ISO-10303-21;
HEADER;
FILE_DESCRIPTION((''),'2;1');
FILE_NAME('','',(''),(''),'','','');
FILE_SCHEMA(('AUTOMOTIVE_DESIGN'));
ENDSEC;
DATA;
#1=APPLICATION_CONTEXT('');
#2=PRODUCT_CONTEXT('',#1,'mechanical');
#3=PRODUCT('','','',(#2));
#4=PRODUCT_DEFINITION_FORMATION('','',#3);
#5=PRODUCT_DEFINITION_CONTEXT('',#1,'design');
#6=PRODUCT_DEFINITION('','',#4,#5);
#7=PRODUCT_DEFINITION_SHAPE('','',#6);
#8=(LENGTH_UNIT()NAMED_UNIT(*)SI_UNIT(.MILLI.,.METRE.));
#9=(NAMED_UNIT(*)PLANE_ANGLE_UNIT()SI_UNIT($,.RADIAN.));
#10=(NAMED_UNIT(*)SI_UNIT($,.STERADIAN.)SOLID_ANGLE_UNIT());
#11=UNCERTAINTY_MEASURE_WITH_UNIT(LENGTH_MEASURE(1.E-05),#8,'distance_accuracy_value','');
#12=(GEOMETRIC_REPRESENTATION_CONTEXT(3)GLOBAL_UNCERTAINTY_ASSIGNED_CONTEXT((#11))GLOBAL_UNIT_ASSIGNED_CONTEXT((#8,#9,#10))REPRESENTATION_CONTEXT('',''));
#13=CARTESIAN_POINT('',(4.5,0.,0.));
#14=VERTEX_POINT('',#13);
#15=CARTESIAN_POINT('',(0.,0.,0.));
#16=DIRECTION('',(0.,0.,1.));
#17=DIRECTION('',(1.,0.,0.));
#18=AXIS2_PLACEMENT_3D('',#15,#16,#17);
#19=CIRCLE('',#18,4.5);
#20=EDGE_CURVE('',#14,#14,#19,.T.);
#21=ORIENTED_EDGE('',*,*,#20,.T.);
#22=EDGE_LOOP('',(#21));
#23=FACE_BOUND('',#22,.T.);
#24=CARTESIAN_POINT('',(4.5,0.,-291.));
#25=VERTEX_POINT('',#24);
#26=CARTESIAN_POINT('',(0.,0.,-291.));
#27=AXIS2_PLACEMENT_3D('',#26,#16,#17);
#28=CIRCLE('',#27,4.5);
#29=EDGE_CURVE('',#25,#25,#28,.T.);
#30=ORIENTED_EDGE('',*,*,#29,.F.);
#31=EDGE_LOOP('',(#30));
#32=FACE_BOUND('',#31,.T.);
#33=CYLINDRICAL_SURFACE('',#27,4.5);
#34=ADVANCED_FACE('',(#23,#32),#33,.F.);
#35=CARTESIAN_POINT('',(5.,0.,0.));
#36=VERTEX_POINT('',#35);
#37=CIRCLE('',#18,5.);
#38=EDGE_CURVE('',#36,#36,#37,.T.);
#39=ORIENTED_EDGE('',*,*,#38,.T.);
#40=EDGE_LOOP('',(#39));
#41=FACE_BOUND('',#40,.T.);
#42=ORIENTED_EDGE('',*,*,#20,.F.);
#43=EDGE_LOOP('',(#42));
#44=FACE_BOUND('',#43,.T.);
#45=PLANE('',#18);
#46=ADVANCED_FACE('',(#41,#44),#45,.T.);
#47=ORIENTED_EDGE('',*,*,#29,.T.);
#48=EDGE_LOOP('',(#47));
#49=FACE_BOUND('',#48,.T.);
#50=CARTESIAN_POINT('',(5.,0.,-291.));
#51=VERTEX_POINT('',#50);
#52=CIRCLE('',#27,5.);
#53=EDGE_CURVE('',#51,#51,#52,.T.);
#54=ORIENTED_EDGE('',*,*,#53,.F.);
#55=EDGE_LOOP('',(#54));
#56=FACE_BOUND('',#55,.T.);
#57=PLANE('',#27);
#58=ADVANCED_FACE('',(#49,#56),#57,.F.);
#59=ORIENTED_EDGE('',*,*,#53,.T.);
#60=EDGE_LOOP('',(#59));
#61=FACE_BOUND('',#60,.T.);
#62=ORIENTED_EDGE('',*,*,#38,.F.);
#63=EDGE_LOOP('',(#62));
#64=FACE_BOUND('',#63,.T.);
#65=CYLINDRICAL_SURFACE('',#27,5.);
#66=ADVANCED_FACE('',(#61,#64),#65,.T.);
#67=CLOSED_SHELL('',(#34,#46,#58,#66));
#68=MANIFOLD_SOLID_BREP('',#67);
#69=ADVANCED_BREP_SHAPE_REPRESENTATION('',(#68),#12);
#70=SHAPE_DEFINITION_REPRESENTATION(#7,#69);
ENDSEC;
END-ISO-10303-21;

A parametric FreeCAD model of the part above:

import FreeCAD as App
import Part
import Sketcher
from FreeCAD import Vector
Q = App.Units.Quantity

doc = App.newDocument("Part")
params = doc.addObject("Spreadsheet::Sheet", "Params")
for row, (alias, value) in enumerate([
    ("sketch1_diameter", "10 mm"),
    ("sketch1_diameter2", "9 mm"),
    ("pad1_length", "291 mm"),
], start=1):
    params.set(f"A{row}", alias)
    params.set(f"B{row}", "=" + value)
    params.setAlias(f"B{row}", alias)

body = doc.addObject("PartDesign::Body", "Body")

# Sketch on XY plane
sketch1 = doc.addObject("Sketcher::SketchObject", "Sketch")
body.addObject(sketch1)
sketch1.AttachmentSupport = (doc.XY_Plane, [""])
sketch1.MapMode = "FlatFace"
sketch1.addGeometry(Part.Circle(Vector(0, 0, 0), Vector(0, 0, 1), 5), False)
sketch1.addGeometry(Part.Circle(Vector(0, 0, 0), Vector(0, 0, 1), 4.5), False)
sketch1.addConstraint(Sketcher.Constraint("Coincident", 0, 3, -1, 1))
sketch1.addConstraint(Sketcher.Constraint("Coincident", 1, 3, -1, 1))
sketch1.addConstraint(Sketcher.Constraint("Diameter", 0, Q("10 mm")))
sketch1.addConstraint(Sketcher.Constraint("Diameter", 1, Q("9 mm")))
sketch1.setExpression("Constraints[2]", "Params.sketch1_diameter")
sketch1.setExpression("Constraints[3]", "Params.sketch1_diameter2")
pad1 = doc.addObject("PartDesign::Pad", "Pad")
body.addObject(pad1)
pad1.Profile = sketch1
pad1.setExpression("Length", "Params.pad1_length")
pad1.Reversed = True

doc.recompute()
